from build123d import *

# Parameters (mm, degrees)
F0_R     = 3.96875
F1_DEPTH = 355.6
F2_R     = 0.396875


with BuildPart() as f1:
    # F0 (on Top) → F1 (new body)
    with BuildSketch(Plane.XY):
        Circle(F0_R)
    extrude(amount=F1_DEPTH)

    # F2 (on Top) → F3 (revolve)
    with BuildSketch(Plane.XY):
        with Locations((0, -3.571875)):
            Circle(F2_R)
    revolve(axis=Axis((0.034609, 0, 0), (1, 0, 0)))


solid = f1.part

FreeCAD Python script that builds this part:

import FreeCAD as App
import Part
import Sketcher
from FreeCAD import Vector
Q = App.Units.Quantity

doc = App.newDocument("Part")
params = doc.addObject("Spreadsheet::Sheet", "Params")
for row, (alias, value) in enumerate([
    ("sketch1_diameter", "0.3125 in"),
    ("pad1_length", "14 in"),
    ("sketch2_diameter", "0.03125 in"),
    ("revolution_angle", "360 deg"),
], start=1):
    params.set(f"A{row}", alias)
    params.set(f"B{row}", "=" + value)
    params.setAlias(f"B{row}", alias)

body = doc.addObject("PartDesign::Body", "Body")

sketch1 = doc.addObject("Sketcher::SketchObject", "Sketch")
body.addObject(sketch1)
sketch1.AttachmentSupport = (doc.XY_Plane, [""])
sketch1.MapMode = "FlatFace"
sketch1.addGeometry(Part.Circle(Vector(0, 0, 0), Vector(0, 0, 1), 4), False)
sketch1.addConstraint([
    Sketcher.Constraint("Coincident", 0, 3, -1, 1),
    Sketcher.Constraint("Diameter", 0, Q("0.3125 in")),
])
sketch1.setExpression("Constraints[1]", "Params.sketch1_diameter")
pad1 = doc.addObject("PartDesign::Pad", "Pad")
body.addObject(pad1)
pad1.Profile = sketch1
pad1.setExpression("Length", "Params.pad1_length")

sketch2 = doc.addObject("Sketcher::SketchObject", "Sketch001")
body.addObject(sketch2)
sketch2.AttachmentSupport = (doc.XY_Plane, [""])
sketch2.MapMode = "FlatFace"
sketch2.addGeometry(Part.Circle(Vector(0, -3.57, 0), Vector(0, 0, 1), 0.4), False)
sketch2.addConstraint([
    Sketcher.Constraint("PointOnObject", 0, 3, -2),
    Sketcher.Constraint("Diameter", 0, Q("0.03125 in")),
    Sketcher.Constraint("DistanceY", 0, 3, -1, 1, Q("0.140625 in")),
])
sketch2.setExpression("Constraints[1]", "Params.sketch2_diameter")
revolution = doc.addObject("PartDesign::Revolution", "Revolution")
body.addObject(revolution)
revolution.Profile = sketch2
revolution.ReferenceAxis = (sketch2, ["H_Axis"])
revolution.setExpression("Angle", "Params.revolution_angle")

doc.recompute()
